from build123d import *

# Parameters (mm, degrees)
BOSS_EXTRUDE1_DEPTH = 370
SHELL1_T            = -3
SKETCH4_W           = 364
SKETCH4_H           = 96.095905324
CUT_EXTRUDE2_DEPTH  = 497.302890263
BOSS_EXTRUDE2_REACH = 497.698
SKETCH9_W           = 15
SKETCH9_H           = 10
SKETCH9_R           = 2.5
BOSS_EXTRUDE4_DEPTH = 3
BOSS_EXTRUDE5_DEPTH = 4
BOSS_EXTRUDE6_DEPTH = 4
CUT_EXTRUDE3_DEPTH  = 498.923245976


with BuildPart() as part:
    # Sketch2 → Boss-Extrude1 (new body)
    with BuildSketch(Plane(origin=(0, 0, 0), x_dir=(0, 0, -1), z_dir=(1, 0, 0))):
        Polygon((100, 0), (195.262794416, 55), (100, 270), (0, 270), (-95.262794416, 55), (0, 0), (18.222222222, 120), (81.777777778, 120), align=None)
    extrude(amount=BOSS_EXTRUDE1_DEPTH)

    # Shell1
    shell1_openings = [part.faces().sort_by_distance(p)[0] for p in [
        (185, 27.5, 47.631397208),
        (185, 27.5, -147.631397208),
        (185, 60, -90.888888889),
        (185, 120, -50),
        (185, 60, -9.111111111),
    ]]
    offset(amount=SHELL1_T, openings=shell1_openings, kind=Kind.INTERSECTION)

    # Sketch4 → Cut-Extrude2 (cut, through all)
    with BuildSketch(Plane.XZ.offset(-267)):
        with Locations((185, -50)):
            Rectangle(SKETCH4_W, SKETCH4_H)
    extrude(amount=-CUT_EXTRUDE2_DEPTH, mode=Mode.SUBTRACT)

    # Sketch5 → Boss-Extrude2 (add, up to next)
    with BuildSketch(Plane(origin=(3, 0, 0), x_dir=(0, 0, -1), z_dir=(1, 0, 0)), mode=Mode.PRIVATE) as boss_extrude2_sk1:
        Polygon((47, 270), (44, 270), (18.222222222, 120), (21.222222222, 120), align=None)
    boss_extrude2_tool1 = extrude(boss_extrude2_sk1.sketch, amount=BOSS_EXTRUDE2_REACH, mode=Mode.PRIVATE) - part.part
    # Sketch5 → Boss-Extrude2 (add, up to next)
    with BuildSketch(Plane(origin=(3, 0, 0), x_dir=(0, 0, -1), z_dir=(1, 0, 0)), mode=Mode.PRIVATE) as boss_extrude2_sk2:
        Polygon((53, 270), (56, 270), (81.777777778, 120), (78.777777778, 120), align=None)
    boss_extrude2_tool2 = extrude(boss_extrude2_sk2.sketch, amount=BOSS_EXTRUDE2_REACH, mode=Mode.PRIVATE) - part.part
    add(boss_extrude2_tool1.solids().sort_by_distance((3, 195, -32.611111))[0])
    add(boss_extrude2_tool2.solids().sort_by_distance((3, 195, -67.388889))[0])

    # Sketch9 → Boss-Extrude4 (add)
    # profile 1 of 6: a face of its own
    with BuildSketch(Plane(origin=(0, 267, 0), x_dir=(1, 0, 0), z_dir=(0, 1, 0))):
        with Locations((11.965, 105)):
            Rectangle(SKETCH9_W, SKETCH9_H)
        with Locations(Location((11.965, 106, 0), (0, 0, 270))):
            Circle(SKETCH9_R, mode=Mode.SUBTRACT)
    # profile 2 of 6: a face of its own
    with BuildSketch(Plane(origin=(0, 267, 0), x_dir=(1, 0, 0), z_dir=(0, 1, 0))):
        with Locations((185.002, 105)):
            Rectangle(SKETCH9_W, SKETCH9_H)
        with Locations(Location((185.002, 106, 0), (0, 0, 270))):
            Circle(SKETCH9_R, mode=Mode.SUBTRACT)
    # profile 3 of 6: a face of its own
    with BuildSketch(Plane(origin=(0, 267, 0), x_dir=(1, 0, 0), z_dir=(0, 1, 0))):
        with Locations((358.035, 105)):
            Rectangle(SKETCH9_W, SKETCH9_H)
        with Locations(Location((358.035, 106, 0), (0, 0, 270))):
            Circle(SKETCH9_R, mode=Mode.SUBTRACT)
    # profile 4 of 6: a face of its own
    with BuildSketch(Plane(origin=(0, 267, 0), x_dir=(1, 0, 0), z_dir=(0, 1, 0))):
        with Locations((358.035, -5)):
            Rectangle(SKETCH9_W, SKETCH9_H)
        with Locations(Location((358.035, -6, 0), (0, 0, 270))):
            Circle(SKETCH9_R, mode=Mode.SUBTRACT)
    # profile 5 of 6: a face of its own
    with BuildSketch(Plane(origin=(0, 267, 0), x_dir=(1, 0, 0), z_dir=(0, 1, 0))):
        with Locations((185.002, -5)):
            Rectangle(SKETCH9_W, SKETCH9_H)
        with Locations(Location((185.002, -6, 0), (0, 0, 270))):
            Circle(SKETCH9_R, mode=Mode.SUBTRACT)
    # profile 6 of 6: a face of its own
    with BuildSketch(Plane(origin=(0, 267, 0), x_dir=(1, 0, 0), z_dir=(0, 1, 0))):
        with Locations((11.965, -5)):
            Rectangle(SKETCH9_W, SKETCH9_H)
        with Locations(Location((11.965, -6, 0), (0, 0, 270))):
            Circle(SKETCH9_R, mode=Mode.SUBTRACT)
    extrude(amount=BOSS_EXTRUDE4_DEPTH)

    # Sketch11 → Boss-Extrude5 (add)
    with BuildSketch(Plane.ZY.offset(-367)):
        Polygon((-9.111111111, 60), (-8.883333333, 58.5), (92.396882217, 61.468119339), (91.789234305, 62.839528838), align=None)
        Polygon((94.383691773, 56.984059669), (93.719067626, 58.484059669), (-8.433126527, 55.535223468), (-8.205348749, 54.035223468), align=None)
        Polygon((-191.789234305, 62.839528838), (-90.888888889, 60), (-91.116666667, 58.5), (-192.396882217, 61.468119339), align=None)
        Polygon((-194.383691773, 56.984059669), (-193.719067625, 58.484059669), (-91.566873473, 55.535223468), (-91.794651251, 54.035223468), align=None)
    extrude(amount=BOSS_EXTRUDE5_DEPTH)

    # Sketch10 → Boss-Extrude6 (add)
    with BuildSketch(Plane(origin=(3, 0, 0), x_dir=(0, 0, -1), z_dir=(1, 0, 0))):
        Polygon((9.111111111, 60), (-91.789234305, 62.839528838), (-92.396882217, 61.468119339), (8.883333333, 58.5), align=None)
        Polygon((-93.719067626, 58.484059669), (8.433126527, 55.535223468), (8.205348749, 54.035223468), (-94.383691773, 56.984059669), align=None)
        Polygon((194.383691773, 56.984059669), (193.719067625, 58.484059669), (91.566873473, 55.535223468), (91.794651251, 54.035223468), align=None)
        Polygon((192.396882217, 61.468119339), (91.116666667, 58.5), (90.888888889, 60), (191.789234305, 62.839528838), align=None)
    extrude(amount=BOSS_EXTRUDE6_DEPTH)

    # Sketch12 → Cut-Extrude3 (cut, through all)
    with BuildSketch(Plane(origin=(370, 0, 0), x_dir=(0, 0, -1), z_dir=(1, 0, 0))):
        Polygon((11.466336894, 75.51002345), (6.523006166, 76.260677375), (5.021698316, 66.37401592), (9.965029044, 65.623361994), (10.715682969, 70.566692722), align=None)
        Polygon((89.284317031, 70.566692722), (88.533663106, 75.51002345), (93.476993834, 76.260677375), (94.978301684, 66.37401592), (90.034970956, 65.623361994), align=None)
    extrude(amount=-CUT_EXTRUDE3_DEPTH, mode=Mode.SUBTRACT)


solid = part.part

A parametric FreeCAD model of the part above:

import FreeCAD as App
import Part
import Sketcher

V = App.Vector
Q = App.Units.Quantity


def faces_at(feature, points):
    """Names of the faces that lie closest to the given points."""
    faces = feature.Shape.Faces
    near = lambda p: min(range(len(faces)), key=lambda i: faces[i].distToShape(Part.Vertex(*p))[0])
    return sorted({f"Face{near(p) + 1}" for p in points})


def add_polygon(sketch, points):
    """Adds a closed chain of lines whose ends are joined by coincident constraints."""
    first, n = sketch.GeometryCount, len(points)
    for a, b in zip(points, points[1:] + points[:1]):
        sketch.addGeometry(Part.LineSegment(App.Vector(*a, 0), App.Vector(*b, 0)), False)
    for i in range(n):
        sketch.addConstraint(Sketcher.Constraint("Coincident", first + i, 2, first + (i + 1) % n, 1))

doc = App.newDocument("Part")
body = doc.addObject("PartDesign::Body", "Body")

sketch1 = body.newObject("Sketcher::SketchObject", "Sketch")
sketch1.AttachmentSupport = (doc.getObject("YZ_Plane"), [""])
sketch1.MapMode = "FlatFace"
add_polygon(sketch1, [(0, -100), (55, -195.262794), (270, -100), (270, 0), (55, 95.262794), (0, 0), (120, -18.222222), (120, -81.777778)])
sketch1.addConstraint([
    Sketcher.Constraint("Vertical", 2),
    Sketcher.Constraint("Vertical", 6),
    Sketcher.Constraint("Coincident", 4, 2, -1, 1),
    Sketcher.Constraint("PointOnObject", 2, 2, -1),
    Sketcher.Constraint("PointOnObject", 7, 2, -2),
    Sketcher.Constraint("Horizontal", 1, 2, 7, 2),
    Sketcher.Constraint("Vertical", 0, 2, 3, 2),
    Sketcher.Constraint("Equal", 1, 3),
    Sketcher.Constraint("Equal", 5, 7),
    Sketcher.Constraint("DistanceY", 2, 1, 2, 2, 100.0),
    Sketcher.Constraint("Angle", 0, Q("-60 deg")),
    Sketcher.Constraint("Distance", 0, 110.0),
    Sketcher.Constraint("DistanceX", -1, 1, 1, 2, 270.0),
    Sketcher.Constraint("DistanceX", -1, 1, 5, 2, 120.0),
    Sketcher.Constraint("DistanceY", 6, 2, 6, 1, 63.555556),
])
pad1 = body.newObject("PartDesign::Pad", "Pad")
pad1.Profile = sketch1
pad1.Length = 370
doc.recompute()

thickness = body.newObject("PartDesign::Thickness", "Thickness")
thickness.Base = (pad1, faces_at(pad1, [
    (185, 27.5, 47.631),
    (185, 27.5, -147.631),
    (185, 60, -90.889),
    (185, 120, -50),
    (185, 60, -9.111),
]))
thickness.Value = 3
thickness.Reversed = True
thickness.Join = "Intersection"

sketch2 = body.newObject("Sketcher::SketchObject", "Sketch001")
sketch2.AttachmentSupport = (doc.getObject("XZ_Plane"), [""])
sketch2.MapMode = "FlatFace"
sketch2.AttachmentOffset = App.Placement(V(0, 0, -267), App.Rotation())
add_polygon(sketch2, [(3, -1.952047), (3, -98.047953), (367, -98.047953), (367, -1.952047)])
sketch2.addConstraint([
    Sketcher.Constraint("Vertical", 0),
    Sketcher.Constraint("Horizontal", 1),
    Sketcher.Constraint("Vertical", 2),
    Sketcher.Constraint("Horizontal", 3),
    Sketcher.Constraint("DistanceX", 1, 1, 1, 2, 364.0),
    Sketcher.Constraint("DistanceX", -1, 1, 0, 2, 3.0),
    Sketcher.Constraint("DistanceY", 0, 2, 0, 1, 96.095905),
    Sketcher.Constraint("DistanceY", 0, 2, -1, 1, 98.047953),
])
pocket1 = body.newObject("PartDesign::Pocket", "Pocket")
pocket1.Profile = sketch2
pocket1.Type = "ThroughAll"

sketch3 = body.newObject("Sketcher::SketchObject", "Sketch002")
sketch3.AttachmentSupport = (doc.getObject("YZ_Plane"), [""])
sketch3.MapMode = "FlatFace"
sketch3.AttachmentOffset = App.Placement(V(0, 0, 3), App.Rotation())
add_polygon(sketch3, [(270, -47), (270, -44), (120, -18.222222), (120, -21.222222)])
sketch3.addConstraint([
    Sketcher.Constraint("Vertical", 0),
    Sketcher.Constraint("Vertical", 2),
    Sketcher.Constraint("Parallel", 1, 3),
    Sketcher.Constraint("DistanceY", 0, 1, 0, 2, 3.0),
    Sketcher.Constraint("DistanceX", -1, 1, 0, 2, 270.0),
    Sketcher.Constraint("DistanceY", 0, 2, -1, 1, 44.0),
    Sketcher.Constraint("DistanceX", -1, 1, 1, 2, 120.0),
    Sketcher.Constraint("Distance", 1, 152.198863),
])
pad2 = body.newObject("PartDesign::Pad", "Pad001")
pad2.Profile = sketch3
pad2.Type = "UpToFirst"

sketch4 = body.newObject("Sketcher::SketchObject", "Sketch003")
sketch4.AttachmentSupport = (doc.getObject("YZ_Plane"), [""])
sketch4.MapMode = "FlatFace"
sketch4.AttachmentOffset = App.Placement(V(0, 0, 3), App.Rotation())
add_polygon(sketch4, [(270, -56), (270, -53), (120, -78.777778), (120, -81.777778)])
sketch4.addConstraint([
    Sketcher.Constraint("Vertical", 0),
    Sketcher.Constraint("Vertical", 2),
    Sketcher.Constraint("Parallel", 1, 3),
    Sketcher.Constraint("DistanceY", 0, 1, 0, 2, 3.0),
    Sketcher.Constraint("DistanceX", -1, 1, 0, 2, 270.0),
    Sketcher.Constraint("DistanceY", 0, 2, -1, 1, 53.0),
    Sketcher.Constraint("DistanceX", -1, 1, 1, 2, 120.0),
    Sketcher.Constraint("Distance", 1, 152.198863),
])
pad3 = body.newObject("PartDesign::Pad", "Pad002")
pad3.Profile = sketch4
pad3.Type = "UpToFirst"

sketch5 = body.newObject("Sketcher::SketchObject", "Sketch004")
sketch5.AttachmentSupport = (doc.getObject("XZ_Plane"), [""])
sketch5.MapMode = "FlatFace"
sketch5.AttachmentOffset = App.Placement(V(0, 0, -267), App.Rotation())
add_polygon(sketch5, [(4.465, -110), (4.465, -100), (19.465, -100), (19.465, -110)])
sketch5.addGeometry(Part.Circle(V(11.965, -106, 0), V(0, 0, 1), 2.5), False)
add_polygon(sketch5, [(177.502, -110), (177.502, -100), (192.502, -100), (192.502, -110)])
sketch5.addGeometry(Part.Circle(V(185.002, -106, 0), V(0, 0, 1), 2.5), False)
add_polygon(sketch5, [(350.535, -110), (350.535, -100), (365.535, -100), (365.535, -110)])
sketch5.addGeometry(Part.Circle(V(358.035, -106, 0), V(0, 0, 1), 2.5), False)
add_polygon(sketch5, [(350.535, 0), (350.535, 10), (365.535, 10), (365.535, 0)])
sketch5.addGeometry(Part.Circle(V(358.035, 6, 0), V(0, 0, 1), 2.5), False)
add_polygon(sketch5, [(177.502, 0), (177.502, 10), (192.502, 10), (192.502, 0)])
sketch5.addGeometry(Part.Circle(V(185.002, 6, 0), V(0, 0, 1), 2.5), False)
add_polygon(sketch5, [(4.465, 0), (4.465, 10), (19.465, 10), (19.465, 0)])
sketch5.addGeometry(Part.Circle(V(11.965, 6, 0), V(0, 0, 1), 2.5), False)
sketch5.addConstraint([
    Sketcher.Constraint("Vertical", 0),
    Sketcher.Constraint("Horizontal", 1),
    Sketcher.Constraint("Vertical", 2),
    Sketcher.Constraint("Horizontal", 3),
    Sketcher.Constraint("Vertical", 5),
    Sketcher.Constraint("Horizontal", 6),
    Sketcher.Constraint("Vertical", 7),
    Sketcher.Constraint("Horizontal", 8),
    Sketcher.Constraint("Vertical", 10),
    Sketcher.Constraint("Horizontal", 11),
    Sketcher.Constraint("Vertical", 12),
    Sketcher.Constraint("Horizontal", 13),
    Sketcher.Constraint("Vertical", 15),
    Sketcher.Constraint("Horizontal", 16),
    Sketcher.Constraint("Vertical", 17),
    Sketcher.Constraint("Horizontal", 18),
    Sketcher.Constraint("Vertical", 20),
    Sketcher.Constraint("Horizontal", 21),
    Sketcher.Constraint("Vertical", 22),
    Sketcher.Constraint("Horizontal", 23),
    Sketcher.Constraint("Vertical", 25),
    Sketcher.Constraint("Horizontal", 26),
    Sketcher.Constraint("Vertical", 27),
    Sketcher.Constraint("Horizontal", 28),
    Sketcher.Constraint("Equal", 4, 9),
    Sketcher.Constraint("Equal", 9, 14),
    Sketcher.Constraint("Equal", 14, 19),
    Sketcher.Constraint("Equal", 19, 24),
    Sketcher.Constraint("Equal", 24, 29),
    Sketcher.Constraint("PointOnObject", 17, 2, -1),
    Sketcher.Constraint("PointOnObject", 22, 2, -1),
    Sketcher.Constraint("PointOnObject", 27, 2, -1),
    Sketcher.Constraint("Horizontal", 4, 3, 9, 3),
    Sketcher.Constraint("Horizontal", 9, 3, 14, 3),
    Sketcher.Constraint("Horizontal", 19, 3, 24, 3),
    Sketcher.Constraint("Horizontal", 24, 3, 29, 3),
    Sketcher.Constraint("Horizontal", 1, 2, 5, 2),
    Sketcher.Constraint("Horizontal", 3, 2, 7, 2),
    Sketcher.Constraint("Horizontal", 6, 2, 10, 2),
    Sketcher.Constraint("Horizontal", 8, 2, 12, 2),
    Sketcher.Constraint("Horizontal", 16, 2, 20, 2),
    Sketcher.Constraint("Horizontal", 21, 2, 25, 2),
    Sketcher.Constraint("Vertical", 14, 3, 19, 3),
    Sketcher.Constraint("Vertical", 9, 3, 24, 3),
    Sketcher.Constraint("Vertical", 4, 3, 29, 3),
    Sketcher.Constraint("Vertical", 13, 2, 15, 2),
    Sketcher.Constraint("Vertical", 12, 2, 16, 2),
    Sketcher.Constraint("Vertical", 8, 2, 20, 2),
    Sketcher.Constraint("Vertical", 7, 2, 21, 2),
    Sketcher.Constraint("Vertical", 3, 2, 25, 2),
    Sketcher.Constraint("Vertical", 2, 2, 26, 2),
    Sketcher.Constraint("Equal", 3, 6),
    Sketcher.Constraint("Equal", 8, 11),
    Sketcher.Constraint("Equal", 12, 15),
    Sketcher.Constraint("Diameter", 4, 5.0),
    Sketcher.Constraint("DistanceX", 1, 1, 1, 2, 15.0),
    Sketcher.Constraint("DistanceY", 0, 1, 0, 2, 10.0),
    Sketcher.Constraint("DistanceY", 4, 3, -1, 1, 106.0),
    Sketcher.Constraint("DistanceY", -1, 1, 19, 3, 6.0),
    Sketcher.Constraint("DistanceY", 0, 2, -1, 1, 100.0),
    Sketcher.Constraint("DistanceX", 0, 2, 4, 3, 7.5),
    Sketcher.Constraint("DistanceX", 5, 2, 9, 3, 7.5),
    Sketcher.Constraint("DistanceX", 10, 2, 14, 3, 7.5),
    Sketcher.Constraint("DistanceX", 4, 3, 14, 3, 346.07),
    Sketcher.Constraint("DistanceX", -1, 1, 4, 3, 11.965),
    Sketcher.Constraint("DistanceX", -1, 1, 9, 3, 185.002),
])
pad4 = body.newObject("PartDesign::Pad", "Pad003")
pad4.Profile = sketch5
pad4.Length = 3
pad4.Reversed = True

sketch6 = body.newObject("Sketcher::SketchObject", "Sketch005")
sketch6.AttachmentSupport = (doc.getObject("YZ_Plane"), [""])
sketch6.MapMode = "FlatFace"
sketch6.AttachmentOffset = App.Placement(V(0, 0, 367), App.Rotation())
add_polygon(sketch6, [(60, -9.111111), (58.5, -8.883333), (61.468119, 92.396882), (62.839529, 91.789234)])
add_polygon(sketch6, [(56.98406, 94.383692), (58.48406, 93.719068), (55.535223, -8.433127), (54.035223, -8.205349)])
add_polygon(sketch6, [(60, -90.888889), (62.839529, -191.789234), (61.468119, -192.396882), (58.5, -91.116667)])
add_polygon(sketch6, [(58.48406, -193.719068), (56.98406, -194.383692), (54.035223, -91.794651), (55.535223, -91.566873)])
sketch6.addConstraint([
    Sketcher.Constraint("DistanceX", -1, 1, 3, 2, 60.0),
    Sketcher.Constraint("DistanceX", -1, 1, 11, 2, 60.0),
    Sketcher.Constraint("Distance", 2, 1.5),
    Sketcher.Constraint("Distance", 9, 1.5),
    Sketcher.Constraint("DistanceX", -1, 1, 0, 2, 58.5),
    Sketcher.Constraint("DistanceX", -1, 1, 10, 2, 58.5),
    Sketcher.Constraint("DistanceX", 6, 2, 5, 2, 1.5),
    Sketcher.Constraint("DistanceX", 7, 2, 4, 2, 1.5),
    Sketcher.Constraint("DistanceX", 13, 2, 5, 2, 1.5),
    Sketcher.Constraint("DistanceX", 13, 2, 14, 2, 1.5),
    Sketcher.Constraint("DistanceX", 12, 2, 15, 2, 1.5),
    Sketcher.Constraint("Distance", 1, 101.323698),
    Sketcher.Constraint("Distance", 10, 101.323698),
    Sketcher.Constraint("DistanceY", 0, 2, 4, 2, 102.602401),
    Sketcher.Constraint("DistanceY", 8, 2, 0, 2, 182.905901),
    Sketcher.Constraint("DistanceX", -1, 1, 1, 2, 61.468119),
    Sketcher.Constraint("DistanceX", -1, 1, 2, 2, 62.839529),
    Sketcher.Constraint("DistanceY", 3, 2, -1, 1, 9.111111),
    Sketcher.Constraint("DistanceX", -1, 1, 4, 2, 58.48406),
    Sketcher.Constraint("DistanceY", 6, 2, -1, 1, 8.205349),
    Sketcher.Constraint("DistanceY", -1, 1, 7, 2, 94.383692),
    Sketcher.Constraint("DistanceX", -1, 1, 8, 2, 62.839529),
    Sketcher.Constraint("DistanceX", -1, 1, 9, 2, 61.468119),
    Sketcher.Constraint("DistanceY", 11, 2, -1, 1, 90.888889),
    Sketcher.Constraint("DistanceX", -1, 1, 12, 2, 56.98406),
    Sketcher.Constraint("DistanceY", 12, 2, -1, 1, 194.383692),
    Sketcher.Constraint("DistanceY", 13, 2, -1, 1, 91.794651),
    Sketcher.Constraint("DistanceY", 3, 2, 4, 2, 102.830179),
    Sketcher.Constraint("DistanceY", 5, 2, 2, 2, 100.222361),
    Sketcher.Constraint("DistanceY", 14, 2, 0, 2, 82.68354),
    Sketcher.Constraint("Distance", 5, 102.194747),
    Sketcher.Constraint("Distance", 12, 1.640648),
])
pad5 = body.newObject("PartDesign::Pad", "Pad004")
pad5.Profile = sketch6
pad5.Length = 4
pad5.Reversed = True

sketch7 = body.newObject("Sketcher::SketchObject", "Sketch006")
sketch7.AttachmentSupport = (doc.getObject("YZ_Plane"), [""])
sketch7.MapMode = "FlatFace"
sketch7.AttachmentOffset = App.Placement(V(0, 0, 3), App.Rotation())
add_polygon(sketch7, [(60, -9.111111), (62.839529, 91.789234), (61.468119, 92.396882), (58.5, -8.883333)])
add_polygon(sketch7, [(55.535223, -8.433127), (58.48406, 93.719068), (56.98406, 94.383692), (54.035223, -8.205349)])
add_polygon(sketch7, [(56.98406, -194.383692), (58.48406, -193.719068), (55.535223, -91.566873), (54.035223, -91.794651)])
add_polygon(sketch7, [(58.5, -91.116667), (61.468119, -192.396882), (62.839529, -191.789234), (60, -90.888889)])
sketch7.addConstraint([
    Sketcher.Constraint("DistanceX", -1, 1, 3, 2, 60.0),
    Sketcher.Constraint("DistanceX", -1, 1, 14, 2, 60.0),
    Sketcher.Constraint("Distance", 1, 1.5),
    Sketcher.Constraint("Distance", 13, 1.5),
    Sketcher.Constraint("DistanceX", -1, 1, 2, 2, 58.5),
    Sketcher.Constraint("DistanceX", -1, 1, 15, 2, 58.5),
    Sketcher.Constraint("DistanceX", 5, 2, 4, 2, 1.5),
    Sketcher.Constraint("DistanceX", 6, 2, 7, 2, 1.5),
    Sketcher.Constraint("DistanceX", 6, 2, 9, 2, 1.5),
    Sketcher.Constraint("DistanceX", 10, 2, 9, 2, 1.5),
    Sketcher.Constraint("DistanceX", 11, 2, 8, 2, 1.5),
    Sketcher.Constraint("Distance", 2, 101.323698),
    Sketcher.Constraint("Distance", 12, 101.323698),
    Sketcher.Constraint("DistanceY", 2, 2, 4, 2, 102.602401),
    Sketcher.Constraint("DistanceY", 8, 2, 0, 2, 285.508302),
    Sketcher.Constraint("DistanceX", -1, 1, 0, 2, 62.839529),
    Sketcher.Constraint("DistanceX", -1, 1, 1, 2, 61.468119),
    Sketcher.Constraint("DistanceY", 3, 2, -1, 1, 9.111111),
    Sketcher.Constraint("DistanceX", -1, 1, 4, 2, 58.48406),
    Sketcher.Constraint("DistanceY", -1, 1, 5, 2, 94.383692),
    Sketcher.Constraint("DistanceY", 6, 2, -1, 1, 8.205349),
    Sketcher.Constraint("DistanceX", -1, 1, 8, 2, 58.48406),
    Sketcher.Constraint("DistanceY", 10, 2, -1, 1, 91.794651),
    Sketcher.Constraint("DistanceY", 11, 2, -1, 1, 194.383692),
    Sketcher.Constraint("DistanceX", -1, 1, 12, 2, 61.468119),
    Sketcher.Constraint("DistanceX", -1, 1, 13, 2, 62.839529),
    Sketcher.Constraint("DistanceY", 14, 2, -1, 1, 90.888889),
    Sketcher.Constraint("DistanceY", 3, 2, 4, 2, 102.830179),
    Sketcher.Constraint("DistanceY", 7, 2, 0, 2, 100.222361),
    Sketcher.Constraint("DistanceY", 9, 2, 2, 2, 82.68354),
    Sketcher.Constraint("DistanceY", 11, 2, 12, 2, 1.98681),
    Sketcher.Constraint("Distance", 4, 102.194747),
])
pad6 = body.newObject("PartDesign::Pad", "Pad005")
pad6.Profile = sketch7
pad6.Length = 4

sketch8 = body.newObject("Sketcher::SketchObject", "Sketch007")
sketch8.AttachmentSupport = (doc.getObject("YZ_Plane"), [""])
sketch8.MapMode = "FlatFace"
sketch8.AttachmentOffset = App.Placement(V(0, 0, 370), App.Rotation())
add_polygon(sketch8, [(75.510023, -11.466337), (76.260677, -6.523006), (66.374016, -5.021698), (65.623362, -9.965029)])
add_polygon(sketch8, [(75.510023, -88.533663), (65.623362, -90.034971), (66.374016, -94.978302), (76.260677, -93.476994)])
sketch8.addConstraint([
    Sketcher.Constraint("Perpendicular", 0, 1),
    Sketcher.Constraint("Perpendicular", 1, 2),
    Sketcher.Constraint("Perpendicular", 2, 3),
    Sketcher.Constraint("Perpendicular", 4, 5),
    Sketcher.Constraint("Perpendicular", 5, 6),
    Sketcher.Constraint("Perpendicular", 6, 7),
    Sketcher.Constraint("Vertical", 2, 2, 4, 2),
    Sketcher.Constraint("Vertical", 1, 2, 5, 2),
    Sketcher.Constraint("Vertical", 0, 2, 6, 2),
    Sketcher.Constraint("Equal", 3, 4),
    Sketcher.Constraint("Distance", 0, 5.0),
    Sketcher.Constraint("Distance", 1, 10.0),
    Sketcher.Constraint("DistanceY", 1, 2, -1, 1, 5.021698),
    Sketcher.Constraint("DistanceY", 5, 2, -1, 1, 94.978302),
    Sketcher.Constraint("DistanceX", -1, 1, 2, 2, 65.623362),
    Sketcher.Constraint("DistanceY", 2, 2, -1, 1, 9.965029),
])
pocket2 = body.newObject("PartDesign::Pocket", "Pocket001")
pocket2.Profile = sketch8
pocket2.Type = "ThroughAll"

doc.recompute()
